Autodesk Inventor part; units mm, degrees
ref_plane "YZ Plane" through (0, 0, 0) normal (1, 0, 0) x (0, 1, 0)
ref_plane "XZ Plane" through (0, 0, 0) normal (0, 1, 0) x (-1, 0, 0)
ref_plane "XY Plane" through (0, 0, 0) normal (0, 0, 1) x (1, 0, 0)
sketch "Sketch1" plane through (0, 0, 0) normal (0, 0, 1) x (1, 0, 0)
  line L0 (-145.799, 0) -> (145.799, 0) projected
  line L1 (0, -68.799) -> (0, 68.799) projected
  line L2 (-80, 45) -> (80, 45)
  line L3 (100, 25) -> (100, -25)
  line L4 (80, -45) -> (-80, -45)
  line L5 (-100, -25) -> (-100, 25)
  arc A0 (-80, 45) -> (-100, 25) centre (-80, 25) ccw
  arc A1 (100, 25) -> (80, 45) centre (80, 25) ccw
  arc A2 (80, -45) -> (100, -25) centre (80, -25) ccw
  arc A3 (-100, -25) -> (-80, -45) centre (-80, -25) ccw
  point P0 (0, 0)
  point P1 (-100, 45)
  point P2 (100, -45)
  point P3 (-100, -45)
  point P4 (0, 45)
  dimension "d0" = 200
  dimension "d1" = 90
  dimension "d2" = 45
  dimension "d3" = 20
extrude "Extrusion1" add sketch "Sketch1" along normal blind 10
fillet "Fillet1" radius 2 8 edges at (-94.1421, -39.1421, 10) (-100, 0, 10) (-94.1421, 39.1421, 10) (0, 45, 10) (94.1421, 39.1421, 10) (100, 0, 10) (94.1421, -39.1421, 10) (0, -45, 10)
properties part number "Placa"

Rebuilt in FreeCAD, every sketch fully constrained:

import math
import FreeCAD as App
import Part
import Sketcher
from FreeCAD import Vector
Q = App.Units.Quantity


def edges_at(feature, points):
    """Names of the edges that pass closest to the given points."""
    edges = feature.Shape.Edges
    near = lambda p: min(range(len(edges)), key=lambda i: edges[i].distToShape(Part.Vertex(*p))[0])
    return sorted({f"Edge{near(p) + 1}" for p in points})

doc = App.newDocument("Part")
body = doc.addObject("PartDesign::Body", "Body")

sketch1 = doc.addObject("Sketcher::SketchObject", "Sketch")
body.addObject(sketch1)
sketch1.AttachmentSupport = (doc.XY_Plane, [""])
sketch1.MapMode = "FlatFace"
sketch1.addGeometry(Part.LineSegment(Vector(-100, 25, 0), Vector(-100, -25, 0)), False)
sketch1.addGeometry(Part.ArcOfCircle(Part.Circle(Vector(-80, -25, 0), Vector(0, 0, 1), 20), math.radians(180), math.radians(270)), False)
sketch1.addGeometry(Part.LineSegment(Vector(-80, -45, 0), Vector(80, -45, 0)), False)
sketch1.addGeometry(Part.ArcOfCircle(Part.Circle(Vector(80, -25, 0), Vector(0, 0, 1), 20), math.radians(-90), math.radians(0)), False)
sketch1.addGeometry(Part.LineSegment(Vector(100, -25, 0), Vector(100, 25, 0)), False)
sketch1.addGeometry(Part.ArcOfCircle(Part.Circle(Vector(80, 25, 0), Vector(0, 0, 1), 20), math.radians(0), math.radians(90)), False)
sketch1.addGeometry(Part.LineSegment(Vector(80, 45, 0), Vector(-80, 45, 0)), False)
sketch1.addGeometry(Part.ArcOfCircle(Part.Circle(Vector(-80, 25, 0), Vector(0, 0, 1), 20), math.radians(90), math.radians(180)), False)
sketch1.addConstraint(Sketcher.Constraint("Tangent", 0, 2, 1, 1))
sketch1.addConstraint(Sketcher.Constraint("Tangent", 1, 2, 2, 1))
sketch1.addConstraint(Sketcher.Constraint("Tangent", 2, 2, 3, 1))
sketch1.addConstraint(Sketcher.Constraint("Tangent", 3, 2, 4, 1))
sketch1.addConstraint(Sketcher.Constraint("Tangent", 4, 2, 5, 1))
sketch1.addConstraint(Sketcher.Constraint("Tangent", 5, 2, 6, 1))
sketch1.addConstraint(Sketcher.Constraint("Tangent", 6, 2, 7, 1))
sketch1.addConstraint(Sketcher.Constraint("Tangent", 7, 2, 0, 1))
sketch1.addConstraint(Sketcher.Constraint("Vertical", 0))
sketch1.addConstraint(Sketcher.Constraint("Horizontal", 2))
sketch1.addConstraint(Sketcher.Constraint("Vertical", 4))
sketch1.addConstraint(Sketcher.Constraint("Horizontal", 6))
sketch1.addConstraint(Sketcher.Constraint("Equal", 1, 3))
sketch1.addConstraint(Sketcher.Constraint("Equal", 3, 5))
sketch1.addConstraint(Sketcher.Constraint("Equal", 5, 7))
sketch1.addConstraint(Sketcher.Constraint("Symmetric", 1, 3, 5, 3, -1, 1))
sketch1.addConstraint(Sketcher.Constraint("Radius", 1, Q("20 mm")))
sketch1.addConstraint(Sketcher.Constraint("DistanceY", 1, 2, -1, 1, Q("45 mm")))
sketch1.addConstraint(Sketcher.Constraint("DistanceX", 2, 1, 2, 2, Q("160 mm")))
pad1 = doc.addObject("PartDesign::Pad", "Pad")
body.addObject(pad1)
pad1.Profile = sketch1
pad1.Length = 10
doc.recompute()

fillet = doc.addObject("PartDesign::Fillet", "Fillet")
body.addObject(fillet)
fillet.Base = (pad1, edges_at(pad1, [
    (-94.142, -39.142, 10),
    (-100, 0, 10),
    (-94.142, 39.142, 10),
    (0, 45, 10),
    (94.142, 39.142, 10),
    (100, 0, 10),
    (94.142, -39.142, 10),
    (0, -45, 10),
]))
fillet.Radius = 2

doc.recompute()
